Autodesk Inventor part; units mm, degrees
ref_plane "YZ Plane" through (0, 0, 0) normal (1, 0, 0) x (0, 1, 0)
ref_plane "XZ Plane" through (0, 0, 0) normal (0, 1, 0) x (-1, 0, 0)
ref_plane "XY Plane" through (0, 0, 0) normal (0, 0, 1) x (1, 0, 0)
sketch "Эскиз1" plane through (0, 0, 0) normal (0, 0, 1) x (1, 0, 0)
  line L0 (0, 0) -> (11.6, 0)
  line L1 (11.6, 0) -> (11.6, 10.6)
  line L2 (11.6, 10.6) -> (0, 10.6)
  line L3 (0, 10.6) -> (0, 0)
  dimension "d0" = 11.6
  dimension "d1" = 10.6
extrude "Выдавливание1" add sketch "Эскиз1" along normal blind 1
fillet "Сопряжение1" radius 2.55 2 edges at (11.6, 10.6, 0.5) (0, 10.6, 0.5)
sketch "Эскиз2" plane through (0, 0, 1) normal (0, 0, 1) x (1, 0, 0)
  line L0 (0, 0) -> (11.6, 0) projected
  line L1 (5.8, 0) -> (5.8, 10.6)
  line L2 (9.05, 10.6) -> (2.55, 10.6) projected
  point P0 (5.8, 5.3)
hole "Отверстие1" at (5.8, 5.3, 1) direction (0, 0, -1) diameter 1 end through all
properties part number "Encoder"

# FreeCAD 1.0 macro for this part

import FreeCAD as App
import Part
import Sketcher
from FreeCAD import Vector


def edges_at(feature, points):
    """Names of the edges that pass closest to the given points."""
    edges = feature.Shape.Edges
    near = lambda p: min(range(len(edges)), key=lambda i: edges[i].distToShape(Part.Vertex(*p))[0])
    return sorted({f"Edge{near(p) + 1}" for p in points})


def add_polygon(sketch, points):
    """Adds a closed chain of lines whose ends are joined by coincident constraints."""
    first, n = sketch.GeometryCount, len(points)
    for a, b in zip(points, points[1:] + points[:1]):
        sketch.addGeometry(Part.LineSegment(App.Vector(*a, 0), App.Vector(*b, 0)), False)
    for i in range(n):
        sketch.addConstraint(Sketcher.Constraint("Coincident", first + i, 2, first + (i + 1) % n, 1))

doc = App.newDocument("Part")
body = doc.addObject("PartDesign::Body", "Body")

# Sketch on XY plane
sketch1 = body.newObject("Sketcher::SketchObject", "Sketch")
sketch1.AttachmentSupport = (doc.getObject("XY_Plane"), [""])
sketch1.MapMode = "FlatFace"
add_polygon(sketch1, [(0, 10.6), (0, 0), (11.6, 0), (11.6, 10.6)])  # lines 0-3
sketch1.addConstraint([
    Sketcher.Constraint("Vertical", 0),
    Sketcher.Constraint("Horizontal", 1),
    Sketcher.Constraint("Vertical", 2),
    Sketcher.Constraint("Horizontal", 3),
    Sketcher.Constraint("Coincident", 0, 2, -1, 1),
    Sketcher.Constraint("DistanceX", 1, 1, 1, 2, 11.6),
    Sketcher.Constraint("DistanceY", 0, 2, 0, 1, 10.6),
])
pad1 = body.newObject("PartDesign::Pad", "Pad")
pad1.Profile = sketch1
pad1.Length = 1
doc.recompute()

fillet = body.newObject("PartDesign::Fillet", "Fillet")
fillet.Base = (pad1, edges_at(pad1, [(11.6, 10.6, 0.5), (0, 10.6, 0.5)]))
fillet.Radius = 2.55

# Sketch on XY plane
sketch2 = body.newObject("Sketcher::SketchObject", "Sketch001")
sketch2.AttachmentSupport = (doc.getObject("XY_Plane"), [""])
sketch2.MapMode = "FlatFace"
sketch2.AttachmentOffset = App.Placement(Vector(0, 0, 1), App.Rotation())
sketch2.addGeometry(Part.Circle(Vector(5.8, 5.3, 0), Vector(0, 0, 1), 0.5), False)
sketch2.addConstraint([
    Sketcher.Constraint("Diameter", 0, 1.0),
    Sketcher.Constraint("DistanceX", -1, 1, 0, 3, 5.8),
    Sketcher.Constraint("DistanceY", -1, 1, 0, 3, 5.3),
])
doc.recompute()
hole = body.newObject("PartDesign::Hole", "Hole")
hole.Profile = sketch2
hole.ThreadType = "None"
hole.Diameter = 1
hole.DepthType = "ThroughAll"

doc.recompute()
